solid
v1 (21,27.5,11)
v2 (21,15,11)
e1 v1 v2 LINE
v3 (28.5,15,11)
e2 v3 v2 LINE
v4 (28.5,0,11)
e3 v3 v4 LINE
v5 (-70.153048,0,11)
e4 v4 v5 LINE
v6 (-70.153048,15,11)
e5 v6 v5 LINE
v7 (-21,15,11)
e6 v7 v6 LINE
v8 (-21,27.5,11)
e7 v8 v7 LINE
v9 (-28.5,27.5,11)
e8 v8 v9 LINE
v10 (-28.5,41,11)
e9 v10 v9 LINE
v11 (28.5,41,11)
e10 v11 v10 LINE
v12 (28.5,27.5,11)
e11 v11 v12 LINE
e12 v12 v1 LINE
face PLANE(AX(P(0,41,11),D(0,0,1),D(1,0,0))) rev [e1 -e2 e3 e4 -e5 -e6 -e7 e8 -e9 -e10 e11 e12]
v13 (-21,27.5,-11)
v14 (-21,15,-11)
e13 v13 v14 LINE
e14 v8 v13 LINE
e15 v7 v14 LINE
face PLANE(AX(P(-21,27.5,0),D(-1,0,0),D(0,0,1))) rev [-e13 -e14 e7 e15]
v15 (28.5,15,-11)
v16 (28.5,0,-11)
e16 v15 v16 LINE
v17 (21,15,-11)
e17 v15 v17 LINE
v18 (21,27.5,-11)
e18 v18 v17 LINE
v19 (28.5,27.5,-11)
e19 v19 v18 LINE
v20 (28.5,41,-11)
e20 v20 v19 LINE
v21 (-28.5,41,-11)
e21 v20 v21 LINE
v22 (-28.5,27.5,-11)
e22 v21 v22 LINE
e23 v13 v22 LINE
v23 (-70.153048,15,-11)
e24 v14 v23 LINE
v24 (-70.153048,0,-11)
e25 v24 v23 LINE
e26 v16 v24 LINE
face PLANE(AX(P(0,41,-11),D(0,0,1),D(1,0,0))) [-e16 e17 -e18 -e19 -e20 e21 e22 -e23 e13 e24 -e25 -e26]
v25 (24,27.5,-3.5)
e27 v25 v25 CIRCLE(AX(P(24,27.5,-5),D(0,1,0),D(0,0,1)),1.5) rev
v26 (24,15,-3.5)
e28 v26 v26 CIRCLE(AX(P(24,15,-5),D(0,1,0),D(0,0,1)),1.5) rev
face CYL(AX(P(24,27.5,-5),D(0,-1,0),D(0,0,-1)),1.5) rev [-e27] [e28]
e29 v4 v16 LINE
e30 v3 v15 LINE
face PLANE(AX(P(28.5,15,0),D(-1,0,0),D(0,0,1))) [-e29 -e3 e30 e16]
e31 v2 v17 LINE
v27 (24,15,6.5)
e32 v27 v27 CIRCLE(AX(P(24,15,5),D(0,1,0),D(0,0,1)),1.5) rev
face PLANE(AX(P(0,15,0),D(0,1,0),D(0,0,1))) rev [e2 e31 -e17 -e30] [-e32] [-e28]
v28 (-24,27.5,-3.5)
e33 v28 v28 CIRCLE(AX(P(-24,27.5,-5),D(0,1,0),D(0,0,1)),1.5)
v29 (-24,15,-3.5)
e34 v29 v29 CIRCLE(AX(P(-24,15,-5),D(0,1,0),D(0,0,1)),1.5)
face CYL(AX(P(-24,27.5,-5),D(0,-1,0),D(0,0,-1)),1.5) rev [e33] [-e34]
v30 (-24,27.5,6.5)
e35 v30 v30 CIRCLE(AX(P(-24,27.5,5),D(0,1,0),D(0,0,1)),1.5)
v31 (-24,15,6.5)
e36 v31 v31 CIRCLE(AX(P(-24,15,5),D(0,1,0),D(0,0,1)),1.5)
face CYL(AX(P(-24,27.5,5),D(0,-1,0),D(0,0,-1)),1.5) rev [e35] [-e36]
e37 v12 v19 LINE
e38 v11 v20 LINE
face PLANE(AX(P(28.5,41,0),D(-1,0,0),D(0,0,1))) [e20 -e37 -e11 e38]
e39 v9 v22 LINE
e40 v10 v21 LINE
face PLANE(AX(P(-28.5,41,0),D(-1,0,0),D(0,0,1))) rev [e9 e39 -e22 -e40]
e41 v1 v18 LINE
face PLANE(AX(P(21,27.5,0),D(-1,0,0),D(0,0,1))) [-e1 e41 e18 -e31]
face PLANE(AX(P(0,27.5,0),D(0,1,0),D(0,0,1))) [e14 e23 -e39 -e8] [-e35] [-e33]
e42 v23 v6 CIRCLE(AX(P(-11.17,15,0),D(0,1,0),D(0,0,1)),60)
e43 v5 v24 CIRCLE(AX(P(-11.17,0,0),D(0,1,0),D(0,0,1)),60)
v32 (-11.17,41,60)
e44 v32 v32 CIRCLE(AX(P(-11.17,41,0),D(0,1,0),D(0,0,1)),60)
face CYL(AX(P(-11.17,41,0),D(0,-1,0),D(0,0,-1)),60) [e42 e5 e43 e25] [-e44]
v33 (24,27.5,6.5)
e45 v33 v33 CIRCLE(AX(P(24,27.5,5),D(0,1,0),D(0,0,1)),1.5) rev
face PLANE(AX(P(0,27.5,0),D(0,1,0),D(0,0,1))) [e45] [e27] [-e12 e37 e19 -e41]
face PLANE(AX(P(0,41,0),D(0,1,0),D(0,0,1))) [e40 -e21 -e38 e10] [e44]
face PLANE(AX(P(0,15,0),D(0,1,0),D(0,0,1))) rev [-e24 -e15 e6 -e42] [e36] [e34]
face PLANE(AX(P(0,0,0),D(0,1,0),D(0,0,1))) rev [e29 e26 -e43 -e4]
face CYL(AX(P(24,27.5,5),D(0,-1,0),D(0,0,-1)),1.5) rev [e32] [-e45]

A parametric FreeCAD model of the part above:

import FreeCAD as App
import Part
import Sketcher
from FreeCAD import Vector
Q = App.Units.Quantity


def add_polygon(sketch, points):
    """Adds a closed chain of lines whose ends are joined by coincident constraints."""
    first, n = sketch.GeometryCount, len(points)
    for a, b in zip(points, points[1:] + points[:1]):
        sketch.addGeometry(Part.LineSegment(App.Vector(*a, 0), App.Vector(*b, 0)), False)
    for i in range(n):
        sketch.addConstraint(Sketcher.Constraint("Coincident", first + i, 2, first + (i + 1) % n, 1))

doc = App.newDocument("Part")
body = doc.addObject("PartDesign::Body", "Body")

# Sketch on XZ plane
sketch1 = doc.addObject("Sketcher::SketchObject", "Sketch")
body.addObject(sketch1)
sketch1.AttachmentSupport = (doc.XZ_Plane, [""])
sketch1.MapMode = "FlatFace"
add_polygon(sketch1, [(-28.5, -11), (-28.5, 11), (-21, 11), (-21, -11)])  # lines 0-3
sketch1.addGeometry(Part.Circle(Vector(-24, 5, 0), Vector(0, 0, 1), 1.5), False)  # 4
sketch1.addGeometry(Part.Circle(Vector(-24, -5, 0), Vector(0, 0, 1), 1.5), False)  # 5
sketch1.addConstraint(Sketcher.Constraint("Vertical", 0))
sketch1.addConstraint(Sketcher.Constraint("Horizontal", 1))
sketch1.addConstraint(Sketcher.Constraint("Vertical", 2))
sketch1.addConstraint(Sketcher.Constraint("Horizontal", 3))
sketch1.addConstraint(Sketcher.Constraint("Equal", 4, 5))
sketch1.addConstraint(Sketcher.Constraint("Symmetric", 4, 3, 5, 3, -1))
sketch1.addConstraint(Sketcher.Constraint("Diameter", 4, Q("3 mm")))
sketch1.addConstraint(Sketcher.Constraint("DistanceY", 0, 1, 0, 2, Q("22 mm")))
sketch1.addConstraint(Sketcher.Constraint("DistanceX", 1, 1, 1, 2, Q("7.5 mm")))
sketch1.addConstraint(Sketcher.Constraint("DistanceX", 4, 3, -1, 1, Q("24 mm")))
sketch1.addConstraint(Sketcher.Constraint("DistanceY", -1, 1, 4, 3, Q("5 mm")))
sketch1.addConstraint(Sketcher.Constraint("DistanceY", -1, 1, 0, 2, Q("11 mm")))
sketch1.addConstraint(Sketcher.Constraint("DistanceX", 1, 2, -1, 1, Q("21 mm")))
pad1 = doc.addObject("PartDesign::Pad", "Pad")
body.addObject(pad1)
pad1.Profile = sketch1
pad1.Length = 27.5
pad1.Reversed = True
body2 = doc.addObject("PartDesign::Body", "Body001")

# Sketch on XZ plane
sketch2 = doc.addObject("Sketcher::SketchObject", "Sketch001")
body2.addObject(sketch2)
sketch2.AttachmentSupport = (doc.getObject("XZ_Plane001"), [""])
sketch2.MapMode = "FlatFace"
add_polygon(sketch2, [(21, -11), (21, 11), (28.5, 11), (28.5, -11)])  # lines 0-3
sketch2.addGeometry(Part.Circle(Vector(24, 5, 0), Vector(0, 0, 1), 1.5), False)  # 4
sketch2.addGeometry(Part.Circle(Vector(24, -5, 0), Vector(0, 0, 1), 1.5), False)  # 5
sketch2.addConstraint(Sketcher.Constraint("Vertical", 0))
sketch2.addConstraint(Sketcher.Constraint("Horizontal", 1))
sketch2.addConstraint(Sketcher.Constraint("Vertical", 2))
sketch2.addConstraint(Sketcher.Constraint("Horizontal", 3))
sketch2.addConstraint(Sketcher.Constraint("Equal", 4, 5))
sketch2.addConstraint(Sketcher.Constraint("Symmetric", 4, 3, 5, 3, -1))
sketch2.addConstraint(Sketcher.Constraint("Diameter", 4, Q("3 mm")))
sketch2.addConstraint(Sketcher.Constraint("DistanceY", 0, 1, 0, 2, Q("22 mm")))
sketch2.addConstraint(Sketcher.Constraint("DistanceX", 1, 1, 1, 2, Q("7.5 mm")))
sketch2.addConstraint(Sketcher.Constraint("DistanceX", -1, 1, 4, 3, Q("24 mm")))
sketch2.addConstraint(Sketcher.Constraint("DistanceY", -1, 1, 4, 3, Q("5 mm")))
sketch2.addConstraint(Sketcher.Constraint("DistanceX", -1, 1, 0, 2, Q("21 mm")))
sketch2.addConstraint(Sketcher.Constraint("DistanceY", -1, 1, 0, 2, Q("11 mm")))
pad2 = doc.addObject("PartDesign::Pad", "Pad001")
body2.addObject(pad2)
pad2.Profile = sketch2
pad2.Length = 27.5
pad2.Reversed = True
body.AllowCompound = True
doc.recompute()

boolean = doc.addObject("PartDesign::Boolean", "Boolean")
body.addObject(boolean)
boolean.Type = "Fuse"
boolean.addObjects([body2])

# Sketch on XZ plane
sketch3 = doc.addObject("Sketcher::SketchObject", "Sketch002")
body.addObject(sketch3)
sketch3.AttachmentSupport = (doc.XZ_Plane, [""])
sketch3.MapMode = "FlatFace"
sketch3.addGeometry(Part.Circle(Vector(-11.17, 0, 0), Vector(0, 0, 1), 60), False)  # 0
add_polygon(sketch3, [(28.5, -11), (28.5, 11), (-28.5, 11), (-28.5, -11)])  # lines 1-4
sketch3.addConstraint(Sketcher.Constraint("Vertical", 1))
sketch3.addConstraint(Sketcher.Constraint("Horizontal", 2))
sketch3.addConstraint(Sketcher.Constraint("Vertical", 3))
sketch3.addConstraint(Sketcher.Constraint("Horizontal", 4))
sketch3.addConstraint(Sketcher.Constraint("Symmetric", 1, 2, 3, 2, -1, 1))
sketch3.addConstraint(Sketcher.Constraint("PointOnObject", 0, 3, -1))
sketch3.addConstraint(Sketcher.Constraint("Diameter", 0, Q("120 mm")))
sketch3.addConstraint(Sketcher.Constraint("DistanceX", 2, 2, 2, 1, Q("57 mm")))
sketch3.addConstraint(Sketcher.Constraint("DistanceY", 1, 1, 1, 2, Q("22 mm")))
sketch3.addConstraint(Sketcher.Constraint("DistanceX", 0, 3, -1, 1, Q("11.17 mm")))
pad3 = doc.addObject("PartDesign::Pad", "Pad002")
body.addObject(pad3)
pad3.Profile = sketch3
pad3.Length = 41
pad3.Reversed = True

# Sketch on XZ plane
sketch4 = doc.addObject("Sketcher::SketchObject", "Sketch003")
body.addObject(sketch4)
sketch4.AttachmentSupport = (doc.XZ_Plane, [""])
sketch4.MapMode = "FlatFace"
add_polygon(sketch4, [(21, -11), (21, 11), (28.5, 11), (28.5, -11)])  # lines 0-3
sketch4.addGeometry(Part.Circle(Vector(24, 5, 0), Vector(0, 0, 1), 1.5), False)  # 4
sketch4.addGeometry(Part.Circle(Vector(24, -5, 0), Vector(0, 0, 1), 1.5), False)  # 5
add_polygon(sketch4, [(-28.5, -11), (-28.5, 11), (-21, 11), (-21, -11)])  # lines 6-9
sketch4.addGeometry(Part.Circle(Vector(-24, 5, 0), Vector(0, 0, 1), 1.5), False)  # 10
sketch4.addGeometry(Part.Circle(Vector(-24, -5, 0), Vector(0, 0, 1), 1.5), False)  # 11
sketch4.addConstraint(Sketcher.Constraint("Vertical", 0))
sketch4.addConstraint(Sketcher.Constraint("Horizontal", 1))
sketch4.addConstraint(Sketcher.Constraint("Vertical", 2))
sketch4.addConstraint(Sketcher.Constraint("Horizontal", 3))
sketch4.addConstraint(Sketcher.Constraint("Vertical", 6))
sketch4.addConstraint(Sketcher.Constraint("Horizontal", 7))
sketch4.addConstraint(Sketcher.Constraint("Vertical", 8))
sketch4.addConstraint(Sketcher.Constraint("Horizontal", 9))
sketch4.addConstraint(Sketcher.Constraint("Equal", 4, 5))
sketch4.addConstraint(Sketcher.Constraint("Equal", 5, 10))
sketch4.addConstraint(Sketcher.Constraint("Equal", 10, 11))
sketch4.addConstraint(Sketcher.Constraint("Symmetric", 5, 3, 10, 3, -1, 1))
sketch4.addConstraint(Sketcher.Constraint("Symmetric", 4, 3, 11, 3, -1, 1))
sketch4.addConstraint(Sketcher.Constraint("Symmetric", 2, 2, 6, 2, -1, 1))
sketch4.addConstraint(Sketcher.Constraint("Symmetric", 0, 2, 8, 2, -1, 1))
sketch4.addConstraint(Sketcher.Constraint("Symmetric", 4, 3, 10, 3, -2))
sketch4.addConstraint(Sketcher.Constraint("Horizontal", 1, 2, 6, 2))
sketch4.addConstraint(Sketcher.Constraint("Diameter", 4, Q("3 mm")))
sketch4.addConstraint(Sketcher.Constraint("DistanceY", 0, 1, 0, 2, Q("22 mm")))
sketch4.addConstraint(Sketcher.Constraint("DistanceX", 1, 1, 1, 2, Q("7.5 mm")))
sketch4.addConstraint(Sketcher.Constraint("DistanceX", -1, 1, 4, 3, Q("24 mm")))
sketch4.addConstraint(Sketcher.Constraint("DistanceY", -1, 1, 4, 3, Q("5 mm")))
sketch4.addConstraint(Sketcher.Constraint("DistanceX", -1, 1, 0, 2, Q("21 mm")))
pocket1 = doc.addObject("PartDesign::Pocket", "Pocket")
body.addObject(pocket1)
pocket1.Profile = sketch4
pocket1.Length = 15

# Sketch on XZ plane
sketch5 = doc.addObject("Sketcher::SketchObject", "Sketch004")
body.addObject(sketch5)
sketch5.AttachmentSupport = (doc.XZ_Plane, [""])
sketch5.MapMode = "FlatFace"
add_polygon(sketch5, [(-84.85884, 11), (-84.85884, -11), (-28.5, -11), (-28.5, 11)])  # lines 0-3
sketch5.addConstraint(Sketcher.Constraint("Vertical", 0))
sketch5.addConstraint(Sketcher.Constraint("Horizontal", 1))
sketch5.addConstraint(Sketcher.Constraint("Vertical", 2))
sketch5.addConstraint(Sketcher.Constraint("Horizontal", 3))
sketch5.addConstraint(Sketcher.Constraint("DistanceY", 0, 2, 0, 1, Q("22 mm")))
sketch5.addConstraint(Sketcher.Constraint("DistanceY", 0, 2, -1, 1, Q("11 mm")))
sketch5.addConstraint(Sketcher.Constraint("DistanceX", 1, 2, -1, 1, Q("28.5 mm")))
sketch5.addConstraint(Sketcher.Constraint("DistanceX", 1, 1, 1, 2, Q("56.35884 mm")))
pocket2 = doc.addObject("PartDesign::Pocket", "Pocket001")
body.addObject(pocket2)
pocket2.Profile = sketch5
pocket2.Length = 15

doc.recompute()
